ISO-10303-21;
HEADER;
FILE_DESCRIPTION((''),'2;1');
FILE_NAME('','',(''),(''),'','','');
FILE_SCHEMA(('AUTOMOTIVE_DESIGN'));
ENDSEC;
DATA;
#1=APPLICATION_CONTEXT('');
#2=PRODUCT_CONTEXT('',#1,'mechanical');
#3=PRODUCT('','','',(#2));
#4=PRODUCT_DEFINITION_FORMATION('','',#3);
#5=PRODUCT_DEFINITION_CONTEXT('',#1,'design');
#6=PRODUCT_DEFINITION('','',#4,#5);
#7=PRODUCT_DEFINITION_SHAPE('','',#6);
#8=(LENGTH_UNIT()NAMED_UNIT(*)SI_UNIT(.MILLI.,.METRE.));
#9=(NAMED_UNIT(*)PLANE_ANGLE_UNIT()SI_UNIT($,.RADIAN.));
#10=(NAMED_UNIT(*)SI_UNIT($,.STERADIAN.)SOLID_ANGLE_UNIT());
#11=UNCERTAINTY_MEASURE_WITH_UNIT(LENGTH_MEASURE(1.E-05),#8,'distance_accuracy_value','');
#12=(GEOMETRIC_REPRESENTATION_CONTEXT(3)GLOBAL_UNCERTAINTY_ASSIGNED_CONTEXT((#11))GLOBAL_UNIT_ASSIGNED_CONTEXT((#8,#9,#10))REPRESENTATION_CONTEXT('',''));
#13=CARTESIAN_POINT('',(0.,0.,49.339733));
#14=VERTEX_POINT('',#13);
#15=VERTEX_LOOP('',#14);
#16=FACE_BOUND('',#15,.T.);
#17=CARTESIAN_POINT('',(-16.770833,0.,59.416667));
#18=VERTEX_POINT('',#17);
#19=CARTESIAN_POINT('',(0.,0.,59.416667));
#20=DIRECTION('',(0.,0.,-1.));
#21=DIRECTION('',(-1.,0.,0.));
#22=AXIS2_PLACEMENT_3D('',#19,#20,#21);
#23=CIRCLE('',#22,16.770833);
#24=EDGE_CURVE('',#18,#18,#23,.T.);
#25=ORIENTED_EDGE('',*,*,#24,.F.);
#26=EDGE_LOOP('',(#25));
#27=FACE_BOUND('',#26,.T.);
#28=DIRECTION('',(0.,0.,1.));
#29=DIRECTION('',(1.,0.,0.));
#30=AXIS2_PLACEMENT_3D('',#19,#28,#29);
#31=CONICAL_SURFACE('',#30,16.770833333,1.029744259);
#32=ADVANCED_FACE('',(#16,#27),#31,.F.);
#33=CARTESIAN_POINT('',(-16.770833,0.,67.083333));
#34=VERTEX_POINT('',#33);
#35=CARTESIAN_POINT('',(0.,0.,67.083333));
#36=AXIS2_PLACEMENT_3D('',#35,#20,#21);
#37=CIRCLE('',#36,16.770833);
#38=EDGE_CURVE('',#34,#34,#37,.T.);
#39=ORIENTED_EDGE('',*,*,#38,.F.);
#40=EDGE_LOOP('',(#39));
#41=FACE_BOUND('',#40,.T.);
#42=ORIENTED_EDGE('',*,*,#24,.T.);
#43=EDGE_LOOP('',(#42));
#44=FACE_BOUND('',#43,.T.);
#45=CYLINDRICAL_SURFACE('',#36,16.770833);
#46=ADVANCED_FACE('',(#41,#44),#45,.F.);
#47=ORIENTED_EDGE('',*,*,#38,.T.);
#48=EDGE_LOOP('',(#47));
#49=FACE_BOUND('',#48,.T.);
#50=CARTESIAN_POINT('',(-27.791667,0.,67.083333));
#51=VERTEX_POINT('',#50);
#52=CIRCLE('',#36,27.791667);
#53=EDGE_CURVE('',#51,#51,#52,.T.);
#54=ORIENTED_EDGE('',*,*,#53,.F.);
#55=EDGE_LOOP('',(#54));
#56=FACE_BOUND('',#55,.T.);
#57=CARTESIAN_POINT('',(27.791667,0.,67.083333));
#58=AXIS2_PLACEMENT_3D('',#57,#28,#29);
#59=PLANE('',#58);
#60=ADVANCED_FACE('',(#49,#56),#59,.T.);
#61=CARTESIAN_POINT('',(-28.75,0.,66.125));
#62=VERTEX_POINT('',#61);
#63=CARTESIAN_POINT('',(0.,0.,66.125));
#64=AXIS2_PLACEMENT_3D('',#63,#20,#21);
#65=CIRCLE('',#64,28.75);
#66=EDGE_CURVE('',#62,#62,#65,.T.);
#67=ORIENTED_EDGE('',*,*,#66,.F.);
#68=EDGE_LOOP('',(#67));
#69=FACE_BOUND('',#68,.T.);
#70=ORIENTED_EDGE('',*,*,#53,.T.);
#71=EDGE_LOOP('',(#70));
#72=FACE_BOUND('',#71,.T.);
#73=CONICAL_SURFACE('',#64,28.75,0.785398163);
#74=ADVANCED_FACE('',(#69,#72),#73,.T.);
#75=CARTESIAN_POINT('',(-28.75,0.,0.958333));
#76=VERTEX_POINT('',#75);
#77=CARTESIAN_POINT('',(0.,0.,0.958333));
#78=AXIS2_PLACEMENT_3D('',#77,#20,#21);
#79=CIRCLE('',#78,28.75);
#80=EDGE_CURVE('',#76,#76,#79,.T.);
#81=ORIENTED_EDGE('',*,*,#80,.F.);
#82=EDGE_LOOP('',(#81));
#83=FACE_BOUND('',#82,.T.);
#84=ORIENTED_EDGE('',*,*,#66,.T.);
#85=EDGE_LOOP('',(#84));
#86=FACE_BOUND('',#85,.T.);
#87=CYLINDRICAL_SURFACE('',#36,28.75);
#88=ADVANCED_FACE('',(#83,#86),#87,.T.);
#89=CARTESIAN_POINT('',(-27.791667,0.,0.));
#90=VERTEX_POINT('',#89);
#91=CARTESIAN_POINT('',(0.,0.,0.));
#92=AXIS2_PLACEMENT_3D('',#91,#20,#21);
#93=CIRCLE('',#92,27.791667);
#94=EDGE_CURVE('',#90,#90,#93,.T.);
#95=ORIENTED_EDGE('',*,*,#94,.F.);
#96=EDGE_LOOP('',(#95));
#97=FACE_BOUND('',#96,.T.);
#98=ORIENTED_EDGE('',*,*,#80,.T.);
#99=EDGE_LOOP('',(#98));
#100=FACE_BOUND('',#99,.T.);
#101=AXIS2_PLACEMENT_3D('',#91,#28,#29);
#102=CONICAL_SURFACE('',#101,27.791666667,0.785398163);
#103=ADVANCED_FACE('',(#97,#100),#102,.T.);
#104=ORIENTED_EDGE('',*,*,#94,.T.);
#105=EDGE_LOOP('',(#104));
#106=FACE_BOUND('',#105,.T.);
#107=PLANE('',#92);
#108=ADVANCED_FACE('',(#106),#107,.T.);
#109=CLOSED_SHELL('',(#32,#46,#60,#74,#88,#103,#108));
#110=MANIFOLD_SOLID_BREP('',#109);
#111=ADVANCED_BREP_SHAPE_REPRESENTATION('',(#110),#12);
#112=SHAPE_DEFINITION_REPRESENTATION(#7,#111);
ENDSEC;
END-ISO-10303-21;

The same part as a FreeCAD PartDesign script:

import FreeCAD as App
import Part
import Sketcher

V = App.Vector
Q = App.Units.Quantity


def add_polygon(sketch, points):
    """Adds a closed chain of lines whose ends are joined by coincident constraints."""
    first, n = sketch.GeometryCount, len(points)
    for a, b in zip(points, points[1:] + points[:1]):
        sketch.addGeometry(Part.LineSegment(App.Vector(*a, 0), App.Vector(*b, 0)), False)
    for i in range(n):
        sketch.addConstraint(Sketcher.Constraint("Coincident", first + i, 2, first + (i + 1) % n, 1))

doc = App.newDocument("Part")
body = doc.addObject("PartDesign::Body", "Body")

# Sketch on XZ plane
sketch1 = doc.addObject("Sketcher::SketchObject", "Sketch")
body.addObject(sketch1)
sketch1.AttachmentSupport = (doc.XZ_Plane, [""])
sketch1.MapMode = "FlatFace"
add_polygon(sketch1, [(16.770833, 59.416667), (0, 49.339733), (0, 0), (27.791667, 0), (28.75, 0.958333), (28.75, 66.125), (27.791667, 67.083333), (16.770833, 67.083333)])  # lines 0-7
sketch1.addConstraint(Sketcher.Constraint("Vertical", 1))
sketch1.addConstraint(Sketcher.Constraint("Horizontal", 2))
sketch1.addConstraint(Sketcher.Constraint("Vertical", 4))
sketch1.addConstraint(Sketcher.Constraint("Horizontal", 6))
sketch1.addConstraint(Sketcher.Constraint("Vertical", 7))
sketch1.addConstraint(Sketcher.Constraint("Coincident", 1, 2, -1, 1))
sketch1.addConstraint(Sketcher.Constraint("Perpendicular", 3, 5))
sketch1.addConstraint(Sketcher.Constraint("Vertical", 2, 2, 5, 2))
sketch1.addConstraint(Sketcher.Constraint("Equal", 3, 5))
sketch1.addConstraint(Sketcher.Constraint("Angle", 0, Q("-149 deg")))
sketch1.addConstraint(Sketcher.Constraint("DistanceX", -1, 1, 3, 2, 28.75))
sketch1.addConstraint(Sketcher.Constraint("DistanceY", -1, 1, 4, 2, 66.125))
sketch1.addConstraint(Sketcher.Constraint("DistanceY", 3, 2, 0, 2, 48.3814))
sketch1.addConstraint(Sketcher.Constraint("DistanceX", 2, 1, 2, 2, 27.791667))
sketch1.addConstraint(Sketcher.Constraint("DistanceX", 6, 2, 6, 1, 11.020833))
revolution = doc.addObject("PartDesign::Revolution", "Revolution")
body.addObject(revolution)
revolution.Profile = sketch1
revolution.ReferenceAxis = (sketch1, ["V_Axis"])
revolution.Angle = 360

doc.recompute()
